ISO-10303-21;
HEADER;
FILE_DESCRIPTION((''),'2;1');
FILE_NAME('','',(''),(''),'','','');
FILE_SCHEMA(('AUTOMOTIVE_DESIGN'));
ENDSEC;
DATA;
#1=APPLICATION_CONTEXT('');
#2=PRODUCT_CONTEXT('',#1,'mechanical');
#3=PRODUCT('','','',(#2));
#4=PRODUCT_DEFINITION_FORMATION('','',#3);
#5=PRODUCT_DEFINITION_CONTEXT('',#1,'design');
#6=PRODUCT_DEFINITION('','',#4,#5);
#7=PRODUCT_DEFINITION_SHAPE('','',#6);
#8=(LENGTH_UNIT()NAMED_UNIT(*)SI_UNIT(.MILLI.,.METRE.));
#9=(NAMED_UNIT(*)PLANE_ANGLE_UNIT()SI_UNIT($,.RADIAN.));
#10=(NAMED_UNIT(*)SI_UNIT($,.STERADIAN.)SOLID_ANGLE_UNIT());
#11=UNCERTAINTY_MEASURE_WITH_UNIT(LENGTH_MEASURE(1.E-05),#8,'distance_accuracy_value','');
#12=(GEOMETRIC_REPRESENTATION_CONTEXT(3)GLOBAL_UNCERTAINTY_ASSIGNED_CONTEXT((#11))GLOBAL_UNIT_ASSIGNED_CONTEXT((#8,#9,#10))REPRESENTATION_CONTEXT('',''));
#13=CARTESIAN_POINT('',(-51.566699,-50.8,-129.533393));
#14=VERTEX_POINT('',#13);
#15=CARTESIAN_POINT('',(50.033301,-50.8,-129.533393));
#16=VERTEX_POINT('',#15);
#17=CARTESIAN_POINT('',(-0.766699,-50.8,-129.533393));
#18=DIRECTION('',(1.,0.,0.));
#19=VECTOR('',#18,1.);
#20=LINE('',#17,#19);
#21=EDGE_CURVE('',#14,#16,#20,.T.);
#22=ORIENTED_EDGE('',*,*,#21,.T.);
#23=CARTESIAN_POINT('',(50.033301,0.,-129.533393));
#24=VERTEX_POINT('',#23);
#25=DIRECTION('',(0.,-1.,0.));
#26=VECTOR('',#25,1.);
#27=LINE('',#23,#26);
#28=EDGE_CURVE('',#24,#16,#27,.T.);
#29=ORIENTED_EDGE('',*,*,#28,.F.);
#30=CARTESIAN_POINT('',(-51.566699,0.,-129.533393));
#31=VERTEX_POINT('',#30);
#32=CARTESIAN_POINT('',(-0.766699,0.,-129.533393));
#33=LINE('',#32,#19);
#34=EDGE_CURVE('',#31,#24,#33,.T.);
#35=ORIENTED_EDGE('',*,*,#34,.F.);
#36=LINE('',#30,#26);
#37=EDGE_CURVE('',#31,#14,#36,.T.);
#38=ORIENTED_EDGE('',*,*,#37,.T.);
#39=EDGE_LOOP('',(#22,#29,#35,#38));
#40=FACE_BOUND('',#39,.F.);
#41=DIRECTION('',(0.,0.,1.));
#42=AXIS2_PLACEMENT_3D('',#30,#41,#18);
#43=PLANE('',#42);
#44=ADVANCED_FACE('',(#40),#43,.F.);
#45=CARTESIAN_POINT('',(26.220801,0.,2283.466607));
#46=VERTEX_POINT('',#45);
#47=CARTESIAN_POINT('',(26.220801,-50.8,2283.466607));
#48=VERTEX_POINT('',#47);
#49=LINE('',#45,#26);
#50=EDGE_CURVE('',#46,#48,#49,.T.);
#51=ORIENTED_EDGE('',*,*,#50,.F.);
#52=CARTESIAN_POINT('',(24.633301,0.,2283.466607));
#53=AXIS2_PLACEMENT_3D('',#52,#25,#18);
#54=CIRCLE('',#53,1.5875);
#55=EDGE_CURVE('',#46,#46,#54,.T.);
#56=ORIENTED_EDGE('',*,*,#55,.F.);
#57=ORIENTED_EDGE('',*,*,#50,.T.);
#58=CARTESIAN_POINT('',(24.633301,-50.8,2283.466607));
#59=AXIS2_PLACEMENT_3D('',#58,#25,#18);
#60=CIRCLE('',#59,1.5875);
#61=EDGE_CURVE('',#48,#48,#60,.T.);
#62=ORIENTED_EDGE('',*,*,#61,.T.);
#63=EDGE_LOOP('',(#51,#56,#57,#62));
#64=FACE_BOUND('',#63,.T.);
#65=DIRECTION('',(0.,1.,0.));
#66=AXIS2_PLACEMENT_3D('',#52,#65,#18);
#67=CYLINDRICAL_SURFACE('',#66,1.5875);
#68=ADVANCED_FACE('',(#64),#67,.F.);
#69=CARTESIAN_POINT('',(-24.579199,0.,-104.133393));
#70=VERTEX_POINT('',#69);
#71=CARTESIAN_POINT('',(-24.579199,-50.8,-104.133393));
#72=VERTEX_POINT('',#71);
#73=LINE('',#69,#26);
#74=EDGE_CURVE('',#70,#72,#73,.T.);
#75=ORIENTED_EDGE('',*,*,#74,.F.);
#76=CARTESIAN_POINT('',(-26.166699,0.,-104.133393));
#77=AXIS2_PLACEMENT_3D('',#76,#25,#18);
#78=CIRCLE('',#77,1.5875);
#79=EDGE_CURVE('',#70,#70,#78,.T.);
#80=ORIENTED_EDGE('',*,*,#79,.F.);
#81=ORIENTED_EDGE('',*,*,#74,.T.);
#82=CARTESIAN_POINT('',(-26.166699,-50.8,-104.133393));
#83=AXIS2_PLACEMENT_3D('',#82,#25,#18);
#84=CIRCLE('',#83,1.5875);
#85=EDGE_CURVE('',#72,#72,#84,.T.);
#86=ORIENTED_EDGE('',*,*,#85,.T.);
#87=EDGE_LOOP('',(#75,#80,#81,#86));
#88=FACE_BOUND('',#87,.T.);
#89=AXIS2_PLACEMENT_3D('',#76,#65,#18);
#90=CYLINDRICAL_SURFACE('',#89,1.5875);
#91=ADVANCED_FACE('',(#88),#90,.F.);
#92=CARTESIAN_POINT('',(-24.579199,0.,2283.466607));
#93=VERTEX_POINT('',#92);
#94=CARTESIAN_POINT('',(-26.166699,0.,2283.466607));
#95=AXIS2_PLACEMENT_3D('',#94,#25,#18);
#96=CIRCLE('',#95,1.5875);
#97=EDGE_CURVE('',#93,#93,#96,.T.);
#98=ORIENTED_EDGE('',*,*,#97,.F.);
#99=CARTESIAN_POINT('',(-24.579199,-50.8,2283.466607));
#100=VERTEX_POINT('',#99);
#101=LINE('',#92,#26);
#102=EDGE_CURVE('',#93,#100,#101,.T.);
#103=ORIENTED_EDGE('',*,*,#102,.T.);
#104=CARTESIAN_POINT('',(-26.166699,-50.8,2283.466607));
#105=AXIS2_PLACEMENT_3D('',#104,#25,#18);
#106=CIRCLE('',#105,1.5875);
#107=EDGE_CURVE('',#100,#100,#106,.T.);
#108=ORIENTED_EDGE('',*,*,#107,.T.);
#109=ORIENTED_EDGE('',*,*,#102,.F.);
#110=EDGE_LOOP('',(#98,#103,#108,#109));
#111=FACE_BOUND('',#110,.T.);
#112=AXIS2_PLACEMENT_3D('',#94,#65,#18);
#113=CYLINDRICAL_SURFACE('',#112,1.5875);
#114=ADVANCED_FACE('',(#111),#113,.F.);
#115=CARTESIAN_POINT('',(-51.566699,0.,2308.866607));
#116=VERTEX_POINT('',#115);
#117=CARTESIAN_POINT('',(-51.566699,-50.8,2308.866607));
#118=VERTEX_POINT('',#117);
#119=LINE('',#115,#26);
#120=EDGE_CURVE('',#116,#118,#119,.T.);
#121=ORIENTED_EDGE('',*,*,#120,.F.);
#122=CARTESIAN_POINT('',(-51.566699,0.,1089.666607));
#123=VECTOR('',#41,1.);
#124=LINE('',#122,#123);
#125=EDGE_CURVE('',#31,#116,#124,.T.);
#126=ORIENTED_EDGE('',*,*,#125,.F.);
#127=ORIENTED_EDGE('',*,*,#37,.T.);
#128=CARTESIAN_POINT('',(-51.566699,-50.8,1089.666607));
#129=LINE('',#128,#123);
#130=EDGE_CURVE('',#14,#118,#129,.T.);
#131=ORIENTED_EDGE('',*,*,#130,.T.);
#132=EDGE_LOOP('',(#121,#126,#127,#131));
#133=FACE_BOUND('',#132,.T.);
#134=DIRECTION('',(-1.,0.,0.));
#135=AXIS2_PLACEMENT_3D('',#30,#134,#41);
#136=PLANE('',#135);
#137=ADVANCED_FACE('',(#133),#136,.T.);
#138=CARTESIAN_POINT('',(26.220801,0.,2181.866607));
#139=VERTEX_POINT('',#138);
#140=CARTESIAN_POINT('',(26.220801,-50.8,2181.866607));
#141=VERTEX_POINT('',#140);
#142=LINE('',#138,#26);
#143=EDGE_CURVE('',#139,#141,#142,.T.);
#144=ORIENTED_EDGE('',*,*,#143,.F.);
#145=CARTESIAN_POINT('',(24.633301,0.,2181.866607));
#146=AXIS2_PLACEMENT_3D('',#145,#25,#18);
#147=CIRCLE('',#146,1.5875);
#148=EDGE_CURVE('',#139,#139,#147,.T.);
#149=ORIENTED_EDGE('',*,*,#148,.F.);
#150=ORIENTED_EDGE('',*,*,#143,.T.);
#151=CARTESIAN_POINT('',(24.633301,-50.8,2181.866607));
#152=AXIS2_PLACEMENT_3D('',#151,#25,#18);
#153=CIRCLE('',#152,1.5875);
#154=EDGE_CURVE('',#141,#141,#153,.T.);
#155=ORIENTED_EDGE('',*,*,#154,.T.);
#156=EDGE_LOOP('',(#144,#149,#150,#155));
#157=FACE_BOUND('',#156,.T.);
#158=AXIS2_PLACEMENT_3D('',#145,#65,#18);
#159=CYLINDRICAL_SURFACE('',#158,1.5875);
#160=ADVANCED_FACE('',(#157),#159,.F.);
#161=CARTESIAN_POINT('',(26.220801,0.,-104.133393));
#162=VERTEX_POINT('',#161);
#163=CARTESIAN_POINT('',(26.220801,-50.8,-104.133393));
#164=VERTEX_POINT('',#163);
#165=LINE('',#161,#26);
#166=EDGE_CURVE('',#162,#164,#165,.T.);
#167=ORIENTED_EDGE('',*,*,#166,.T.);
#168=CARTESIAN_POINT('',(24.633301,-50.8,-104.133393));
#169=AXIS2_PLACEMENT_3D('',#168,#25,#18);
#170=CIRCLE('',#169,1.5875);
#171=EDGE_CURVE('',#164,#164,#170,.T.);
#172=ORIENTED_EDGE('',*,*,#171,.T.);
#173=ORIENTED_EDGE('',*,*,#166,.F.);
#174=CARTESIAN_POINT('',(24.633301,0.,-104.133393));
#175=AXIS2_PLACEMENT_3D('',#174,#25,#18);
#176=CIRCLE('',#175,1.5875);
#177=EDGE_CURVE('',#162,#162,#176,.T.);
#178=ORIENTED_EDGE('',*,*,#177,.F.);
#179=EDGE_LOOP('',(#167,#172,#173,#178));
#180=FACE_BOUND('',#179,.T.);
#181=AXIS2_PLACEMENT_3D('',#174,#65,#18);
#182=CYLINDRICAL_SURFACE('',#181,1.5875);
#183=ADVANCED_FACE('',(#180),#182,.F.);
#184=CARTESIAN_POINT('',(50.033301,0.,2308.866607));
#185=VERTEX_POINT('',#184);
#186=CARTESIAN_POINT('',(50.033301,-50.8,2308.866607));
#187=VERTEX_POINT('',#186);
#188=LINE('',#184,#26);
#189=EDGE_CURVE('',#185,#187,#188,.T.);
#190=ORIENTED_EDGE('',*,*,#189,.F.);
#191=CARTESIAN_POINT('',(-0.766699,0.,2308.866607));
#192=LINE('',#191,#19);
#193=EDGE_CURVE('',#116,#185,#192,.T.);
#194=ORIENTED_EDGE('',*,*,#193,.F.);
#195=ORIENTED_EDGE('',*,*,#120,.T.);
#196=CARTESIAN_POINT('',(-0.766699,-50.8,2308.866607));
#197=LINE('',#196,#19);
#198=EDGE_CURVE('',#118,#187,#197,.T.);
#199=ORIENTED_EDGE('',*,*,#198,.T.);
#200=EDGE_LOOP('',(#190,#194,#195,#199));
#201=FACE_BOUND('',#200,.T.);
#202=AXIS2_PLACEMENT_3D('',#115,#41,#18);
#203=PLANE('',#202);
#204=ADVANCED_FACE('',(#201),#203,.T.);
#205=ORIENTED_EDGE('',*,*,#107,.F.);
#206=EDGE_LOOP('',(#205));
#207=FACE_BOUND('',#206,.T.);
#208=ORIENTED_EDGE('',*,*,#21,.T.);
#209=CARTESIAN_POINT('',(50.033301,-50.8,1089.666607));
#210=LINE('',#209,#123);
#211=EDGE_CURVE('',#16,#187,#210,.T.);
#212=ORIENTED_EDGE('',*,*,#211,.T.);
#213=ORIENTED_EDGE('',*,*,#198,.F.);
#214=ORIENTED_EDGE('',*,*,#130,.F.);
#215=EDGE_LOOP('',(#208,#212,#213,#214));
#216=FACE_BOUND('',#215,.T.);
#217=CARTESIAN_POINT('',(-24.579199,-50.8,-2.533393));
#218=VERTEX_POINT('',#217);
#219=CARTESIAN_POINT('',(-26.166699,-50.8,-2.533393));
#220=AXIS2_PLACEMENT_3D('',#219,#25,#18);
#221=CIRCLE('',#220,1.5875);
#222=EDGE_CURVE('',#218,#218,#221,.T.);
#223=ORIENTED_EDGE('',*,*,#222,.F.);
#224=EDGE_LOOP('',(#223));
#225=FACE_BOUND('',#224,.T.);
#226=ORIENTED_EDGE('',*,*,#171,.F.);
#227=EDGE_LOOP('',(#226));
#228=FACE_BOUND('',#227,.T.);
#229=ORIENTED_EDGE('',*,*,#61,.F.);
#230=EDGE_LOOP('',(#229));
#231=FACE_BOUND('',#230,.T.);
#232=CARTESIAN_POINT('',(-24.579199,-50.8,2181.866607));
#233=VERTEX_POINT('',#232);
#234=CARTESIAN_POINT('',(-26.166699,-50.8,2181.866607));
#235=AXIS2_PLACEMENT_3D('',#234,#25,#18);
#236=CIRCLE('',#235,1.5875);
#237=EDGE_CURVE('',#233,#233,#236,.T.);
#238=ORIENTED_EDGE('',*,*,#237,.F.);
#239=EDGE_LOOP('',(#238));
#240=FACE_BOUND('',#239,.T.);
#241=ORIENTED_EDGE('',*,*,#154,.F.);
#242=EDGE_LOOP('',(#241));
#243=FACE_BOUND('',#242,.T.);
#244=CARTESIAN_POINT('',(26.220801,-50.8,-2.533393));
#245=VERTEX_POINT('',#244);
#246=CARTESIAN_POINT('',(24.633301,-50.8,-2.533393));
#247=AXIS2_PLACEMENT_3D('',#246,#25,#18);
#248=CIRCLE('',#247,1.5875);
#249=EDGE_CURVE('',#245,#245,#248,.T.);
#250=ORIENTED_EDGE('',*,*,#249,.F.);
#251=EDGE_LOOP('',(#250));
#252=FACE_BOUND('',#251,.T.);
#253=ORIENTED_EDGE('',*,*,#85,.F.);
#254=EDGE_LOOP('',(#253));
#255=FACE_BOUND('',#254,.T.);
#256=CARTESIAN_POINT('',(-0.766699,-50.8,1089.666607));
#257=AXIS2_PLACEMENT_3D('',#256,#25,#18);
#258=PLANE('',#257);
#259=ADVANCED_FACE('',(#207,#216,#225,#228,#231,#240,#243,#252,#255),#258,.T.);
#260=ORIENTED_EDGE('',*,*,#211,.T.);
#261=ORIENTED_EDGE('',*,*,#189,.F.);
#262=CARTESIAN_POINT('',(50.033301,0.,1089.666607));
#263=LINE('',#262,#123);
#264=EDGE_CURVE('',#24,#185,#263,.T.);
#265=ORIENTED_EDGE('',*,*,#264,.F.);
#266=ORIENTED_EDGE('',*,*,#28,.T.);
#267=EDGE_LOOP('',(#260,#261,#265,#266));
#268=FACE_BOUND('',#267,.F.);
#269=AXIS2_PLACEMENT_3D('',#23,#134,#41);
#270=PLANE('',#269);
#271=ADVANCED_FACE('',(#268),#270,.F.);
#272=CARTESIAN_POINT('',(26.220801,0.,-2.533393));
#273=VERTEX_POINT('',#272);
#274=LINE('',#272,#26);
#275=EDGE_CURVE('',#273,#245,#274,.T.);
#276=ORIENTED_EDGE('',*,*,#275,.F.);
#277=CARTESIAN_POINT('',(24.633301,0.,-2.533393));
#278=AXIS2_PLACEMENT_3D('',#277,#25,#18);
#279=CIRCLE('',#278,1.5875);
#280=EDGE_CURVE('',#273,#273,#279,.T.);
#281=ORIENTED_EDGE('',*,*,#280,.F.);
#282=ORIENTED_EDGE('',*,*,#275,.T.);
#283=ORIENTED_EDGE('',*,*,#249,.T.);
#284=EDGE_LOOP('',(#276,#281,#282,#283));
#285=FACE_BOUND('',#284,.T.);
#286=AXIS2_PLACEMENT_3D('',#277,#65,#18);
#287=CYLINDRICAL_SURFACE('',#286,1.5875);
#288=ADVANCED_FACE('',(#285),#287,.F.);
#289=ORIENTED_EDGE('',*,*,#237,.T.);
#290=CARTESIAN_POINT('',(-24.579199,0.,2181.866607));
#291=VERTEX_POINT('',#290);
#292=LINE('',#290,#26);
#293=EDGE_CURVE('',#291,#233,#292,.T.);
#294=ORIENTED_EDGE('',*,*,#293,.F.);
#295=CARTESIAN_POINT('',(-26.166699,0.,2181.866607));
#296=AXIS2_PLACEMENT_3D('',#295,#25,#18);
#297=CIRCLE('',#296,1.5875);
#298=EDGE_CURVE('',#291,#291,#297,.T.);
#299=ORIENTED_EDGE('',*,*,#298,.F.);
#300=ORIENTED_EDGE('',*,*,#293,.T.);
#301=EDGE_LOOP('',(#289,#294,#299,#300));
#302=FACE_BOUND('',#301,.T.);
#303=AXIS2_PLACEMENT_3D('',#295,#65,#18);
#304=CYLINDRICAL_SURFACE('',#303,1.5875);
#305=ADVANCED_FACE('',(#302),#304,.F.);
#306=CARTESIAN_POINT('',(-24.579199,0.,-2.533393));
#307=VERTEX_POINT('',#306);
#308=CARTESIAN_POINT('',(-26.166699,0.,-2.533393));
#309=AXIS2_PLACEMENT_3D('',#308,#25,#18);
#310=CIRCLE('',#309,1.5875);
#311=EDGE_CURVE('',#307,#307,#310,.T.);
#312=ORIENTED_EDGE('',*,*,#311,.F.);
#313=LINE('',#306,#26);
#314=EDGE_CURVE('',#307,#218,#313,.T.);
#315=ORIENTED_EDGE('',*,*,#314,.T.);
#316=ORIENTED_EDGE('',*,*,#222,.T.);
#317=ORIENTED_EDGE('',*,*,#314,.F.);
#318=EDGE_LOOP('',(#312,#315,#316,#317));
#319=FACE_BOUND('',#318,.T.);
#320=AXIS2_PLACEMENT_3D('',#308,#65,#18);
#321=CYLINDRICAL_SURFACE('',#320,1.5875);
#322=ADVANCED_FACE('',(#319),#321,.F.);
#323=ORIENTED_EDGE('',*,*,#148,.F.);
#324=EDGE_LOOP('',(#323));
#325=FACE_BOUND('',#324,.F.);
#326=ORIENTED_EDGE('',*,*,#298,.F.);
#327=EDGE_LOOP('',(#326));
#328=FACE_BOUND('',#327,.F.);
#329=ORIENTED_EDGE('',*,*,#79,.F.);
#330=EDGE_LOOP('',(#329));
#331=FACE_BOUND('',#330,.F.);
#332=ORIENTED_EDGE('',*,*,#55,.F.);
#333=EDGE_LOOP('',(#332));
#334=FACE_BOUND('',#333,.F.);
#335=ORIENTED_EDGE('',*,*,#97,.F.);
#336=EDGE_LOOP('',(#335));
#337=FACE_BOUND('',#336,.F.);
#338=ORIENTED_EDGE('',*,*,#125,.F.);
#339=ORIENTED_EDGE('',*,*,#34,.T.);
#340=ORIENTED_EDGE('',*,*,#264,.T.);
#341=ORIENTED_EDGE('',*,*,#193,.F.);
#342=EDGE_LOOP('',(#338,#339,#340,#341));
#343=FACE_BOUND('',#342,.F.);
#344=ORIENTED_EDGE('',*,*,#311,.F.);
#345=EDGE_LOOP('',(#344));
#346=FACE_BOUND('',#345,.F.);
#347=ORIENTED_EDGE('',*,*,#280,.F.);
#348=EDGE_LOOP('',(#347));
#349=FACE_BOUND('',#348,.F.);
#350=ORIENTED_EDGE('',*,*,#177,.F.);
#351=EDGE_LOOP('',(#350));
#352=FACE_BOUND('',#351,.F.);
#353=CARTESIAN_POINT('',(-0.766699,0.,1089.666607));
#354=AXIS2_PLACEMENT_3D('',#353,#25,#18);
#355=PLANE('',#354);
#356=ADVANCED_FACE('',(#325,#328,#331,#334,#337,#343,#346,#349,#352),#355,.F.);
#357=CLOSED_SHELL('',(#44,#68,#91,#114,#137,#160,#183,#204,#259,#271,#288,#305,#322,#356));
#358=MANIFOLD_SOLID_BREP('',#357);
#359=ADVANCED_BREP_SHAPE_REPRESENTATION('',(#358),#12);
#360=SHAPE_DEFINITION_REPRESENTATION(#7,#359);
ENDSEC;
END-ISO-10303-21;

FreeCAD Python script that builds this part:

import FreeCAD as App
import Part
import Sketcher
Q = App.Units.Quantity


def add_polygon(sketch, points):
    """Adds a closed chain of lines whose ends are joined by coincident constraints."""
    first, n = sketch.GeometryCount, len(points)
    for a, b in zip(points, points[1:] + points[:1]):
        sketch.addGeometry(Part.LineSegment(App.Vector(*a, 0), App.Vector(*b, 0)), False)
    for i in range(n):
        sketch.addConstraint(Sketcher.Constraint("Coincident", first + i, 2, first + (i + 1) % n, 1))

doc = App.newDocument("Part")
body = doc.addObject("PartDesign::Body", "Body")

# Sketch on XZ plane
sketch1 = body.newObject("Sketcher::SketchObject", "Sketch")
sketch1.AttachmentSupport = (doc.getObject("XZ_Plane"), [""])
sketch1.MapMode = "FlatFace"
add_polygon(sketch1, [(-51.6, 2308.9), (-51.6, -129.5), (50, -129.5), (50, 2308.9)])  # lines 0-3
sketch1.addGeometry(Part.Circle(App.Vector(-26.2, -104.1, 0), App.Vector(0, 0, 1), 1.6), False)  # 4
sketch1.addGeometry(Part.Circle(App.Vector(-26.2, -2.5, 0), App.Vector(0, 0, 1), 1.6), False)  # 5
sketch1.addGeometry(Part.Circle(App.Vector(24.6, -104.1, 0), App.Vector(0, 0, 1), 1.6), False)  # 6
sketch1.addGeometry(Part.Circle(App.Vector(24.6, -2.5, 0), App.Vector(0, 0, 1), 1.6), False)  # 7
sketch1.addGeometry(Part.Circle(App.Vector(-26.2, 2181.9, 0), App.Vector(0, 0, 1), 1.6), False)  # 8
sketch1.addGeometry(Part.Circle(App.Vector(-26.2, 2283.5, 0), App.Vector(0, 0, 1), 1.6), False)  # 9
sketch1.addGeometry(Part.Circle(App.Vector(24.6, 2181.9, 0), App.Vector(0, 0, 1), 1.6), False)  # 10
sketch1.addGeometry(Part.Circle(App.Vector(24.6, 2283.5, 0), App.Vector(0, 0, 1), 1.6), False)  # 11
sketch1.addConstraint([
    Sketcher.Constraint("Vertical", 0),
    Sketcher.Constraint("Horizontal", 1),
    Sketcher.Constraint("Vertical", 2),
    Sketcher.Constraint("Horizontal", 3),
    Sketcher.Constraint("Equal", 4, 5),
    Sketcher.Constraint("Equal", 5, 6),
    Sketcher.Constraint("Equal", 6, 7),
    Sketcher.Constraint("Equal", 7, 8),
    Sketcher.Constraint("Equal", 8, 9),
    Sketcher.Constraint("Equal", 9, 10),
    Sketcher.Constraint("Equal", 10, 11),
    Sketcher.Constraint("Horizontal", 4, 3, 6, 3),
    Sketcher.Constraint("Horizontal", 5, 3, 7, 3),
    Sketcher.Constraint("Horizontal", 8, 3, 10, 3),
    Sketcher.Constraint("Horizontal", 9, 3, 11, 3),
    Sketcher.Constraint("Vertical", 4, 3, 5, 3),
    Sketcher.Constraint("Vertical", 6, 3, 7, 3),
    Sketcher.Constraint("Vertical", 5, 3, 8, 3),
    Sketcher.Constraint("Vertical", 8, 3, 9, 3),
    Sketcher.Constraint("Vertical", 7, 3, 10, 3),
    Sketcher.Constraint("Vertical", 10, 3, 11, 3),
    Sketcher.Constraint("DistanceX", 1, 1, 1, 2, Q("4 in")),
    Sketcher.Constraint("DistanceY", 0, 2, 0, 1, Q("96 in")),
    Sketcher.Constraint("Diameter", 4, Q("0.125 in")),
    Sketcher.Constraint("DistanceY", 4, 3, 5, 3, Q("4 in")),
    Sketcher.Constraint("DistanceX", 4, 3, 6, 3, Q("2 in")),
    Sketcher.Constraint("DistanceY", 5, 3, 8, 3, Q("86 in")),
    Sketcher.Constraint("DistanceY", 8, 3, 9, 3, Q("4 in")),
    Sketcher.Constraint("DistanceX", 0, 2, 4, 3, Q("1 in")),
    Sketcher.Constraint("DistanceY", 0, 2, 4, 3, Q("1 in")),
    Sketcher.Constraint("DistanceX", 4, 3, -1, 1, Q("26.166699 mm")),
    Sketcher.Constraint("DistanceY", 4, 3, -1, 1, Q("104.133393 mm")),
])
pad1 = body.newObject("PartDesign::Pad", "Pad")
pad1.Profile = sketch1
pad1.Length = Q("2 in")

doc.recompute()
